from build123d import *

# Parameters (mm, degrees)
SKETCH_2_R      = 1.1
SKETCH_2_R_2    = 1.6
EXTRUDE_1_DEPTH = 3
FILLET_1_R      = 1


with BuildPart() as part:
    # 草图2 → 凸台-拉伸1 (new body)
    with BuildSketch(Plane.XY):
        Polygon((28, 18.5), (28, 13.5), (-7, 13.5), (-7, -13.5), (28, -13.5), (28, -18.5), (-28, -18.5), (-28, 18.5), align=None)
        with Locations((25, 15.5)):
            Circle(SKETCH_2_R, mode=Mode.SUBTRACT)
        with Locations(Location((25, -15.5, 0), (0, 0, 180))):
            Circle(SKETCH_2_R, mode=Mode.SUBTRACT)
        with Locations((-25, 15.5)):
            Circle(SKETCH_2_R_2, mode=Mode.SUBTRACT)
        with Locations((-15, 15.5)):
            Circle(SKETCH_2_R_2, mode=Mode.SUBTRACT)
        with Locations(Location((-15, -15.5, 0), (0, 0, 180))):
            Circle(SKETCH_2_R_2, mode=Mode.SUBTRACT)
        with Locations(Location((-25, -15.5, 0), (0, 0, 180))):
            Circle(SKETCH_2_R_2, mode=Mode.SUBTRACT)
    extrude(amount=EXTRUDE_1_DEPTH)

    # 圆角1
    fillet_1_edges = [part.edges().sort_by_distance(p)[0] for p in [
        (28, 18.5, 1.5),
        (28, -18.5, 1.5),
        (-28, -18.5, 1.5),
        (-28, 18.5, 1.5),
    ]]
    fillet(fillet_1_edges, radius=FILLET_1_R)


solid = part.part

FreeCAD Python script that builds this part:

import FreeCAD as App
import Part
import Sketcher

V = App.Vector
Q = App.Units.Quantity


def edges_at(feature, points):
    """Names of the edges that pass closest to the given points."""
    edges = feature.Shape.Edges
    near = lambda p: min(range(len(edges)), key=lambda i: edges[i].distToShape(Part.Vertex(*p))[0])
    return sorted({f"Edge{near(p) + 1}" for p in points})


def add_polygon(sketch, points):
    """Adds a closed chain of lines whose ends are joined by coincident constraints."""
    first, n = sketch.GeometryCount, len(points)
    for a, b in zip(points, points[1:] + points[:1]):
        sketch.addGeometry(Part.LineSegment(App.Vector(*a, 0), App.Vector(*b, 0)), False)
    for i in range(n):
        sketch.addConstraint(Sketcher.Constraint("Coincident", first + i, 2, first + (i + 1) % n, 1))

doc = App.newDocument("Part")
body = doc.addObject("PartDesign::Body", "Body")

# Sketch on XY plane
sketch1 = body.newObject("Sketcher::SketchObject", "Sketch")
sketch1.AttachmentSupport = (doc.getObject("XY_Plane"), [""])
sketch1.MapMode = "FlatFace"
add_polygon(sketch1, [(28, 13.5), (28, 18.5), (-28, 18.5), (-28, -18.5), (28, -18.5), (28, -13.5), (-7, -13.5), (-7, 13.5)])  # lines 0-7
sketch1.addGeometry(Part.Circle(V(25, -15.5, 0), V(0, 0, 1), 1.1), False)  # 8
sketch1.addGeometry(Part.Circle(V(-15, -15.5, 0), V(0, 0, 1), 1.6), False)  # 9
sketch1.addGeometry(Part.Circle(V(-25, -15.5, 0), V(0, 0, 1), 1.6), False)  # 10
sketch1.addGeometry(Part.Circle(V(25, 15.5, 0), V(0, 0, 1), 1.1), False)  # 11
sketch1.addGeometry(Part.Circle(V(-15, 15.5, 0), V(0, 0, 1), 1.6), False)  # 12
sketch1.addGeometry(Part.Circle(V(-25, 15.5, 0), V(0, 0, 1), 1.6), False)  # 13
sketch1.addConstraint([
    Sketcher.Constraint("Vertical", 0),
    Sketcher.Constraint("Horizontal", 1),
    Sketcher.Constraint("Vertical", 2),
    Sketcher.Constraint("Horizontal", 3),
    Sketcher.Constraint("Vertical", 4),
    Sketcher.Constraint("Horizontal", 5),
    Sketcher.Constraint("Vertical", 6),
    Sketcher.Constraint("Horizontal", 7),
    Sketcher.Constraint("Equal", 9, 10),
    Sketcher.Constraint("Equal", 8, 11),
    Sketcher.Constraint("Equal", 10, 12),
    Sketcher.Constraint("Equal", 12, 13),
    Sketcher.Constraint("Symmetric", 10, 3, 11, 3, -1, 1),
    Sketcher.Constraint("Symmetric", 8, 3, 13, 3, -1, 1),
    Sketcher.Constraint("Symmetric", 0, 2, 2, 2, -1, 1),
    Sketcher.Constraint("Symmetric", 8, 3, 10, 3, -2),
    Sketcher.Constraint("Symmetric", 9, 3, 12, 3, -1),
    Sketcher.Constraint("Symmetric", 4, 2, 7, 2, -1),
    Sketcher.Constraint("Horizontal", 8, 3, 9, 3),
    Sketcher.Constraint("Diameter", 8, Q("2.2 mm")),
    Sketcher.Constraint("Diameter", 9, Q("3.2 mm")),
    Sketcher.Constraint("DistanceX", 1, 2, 1, 1, Q("56 mm")),
    Sketcher.Constraint("DistanceX", 5, 2, 5, 1, Q("35 mm")),
    Sketcher.Constraint("DistanceY", 0, 1, 0, 2, Q("5 mm")),
    Sketcher.Constraint("DistanceY", 2, 2, 2, 1, Q("37 mm")),
    Sketcher.Constraint("DistanceX", -1, 1, 8, 3, Q("25 mm")),
    Sketcher.Constraint("DistanceX", 9, 3, -1, 1, Q("15 mm")),
    Sketcher.Constraint("DistanceY", 8, 3, 11, 3, Q("31 mm")),
])
pad1 = body.newObject("PartDesign::Pad", "Pad")
pad1.Profile = sketch1
pad1.Length = 3
doc.recompute()

fillet = body.newObject("PartDesign::Fillet", "Fillet")
fillet.Base = (pad1, edges_at(pad1, [
    (28, 18.5, 1.5),
    (28, -18.5, 1.5),
    (-28, -18.5, 1.5),
    (-28, 18.5, 1.5),
]))
fillet.Radius = 1

doc.recompute()
